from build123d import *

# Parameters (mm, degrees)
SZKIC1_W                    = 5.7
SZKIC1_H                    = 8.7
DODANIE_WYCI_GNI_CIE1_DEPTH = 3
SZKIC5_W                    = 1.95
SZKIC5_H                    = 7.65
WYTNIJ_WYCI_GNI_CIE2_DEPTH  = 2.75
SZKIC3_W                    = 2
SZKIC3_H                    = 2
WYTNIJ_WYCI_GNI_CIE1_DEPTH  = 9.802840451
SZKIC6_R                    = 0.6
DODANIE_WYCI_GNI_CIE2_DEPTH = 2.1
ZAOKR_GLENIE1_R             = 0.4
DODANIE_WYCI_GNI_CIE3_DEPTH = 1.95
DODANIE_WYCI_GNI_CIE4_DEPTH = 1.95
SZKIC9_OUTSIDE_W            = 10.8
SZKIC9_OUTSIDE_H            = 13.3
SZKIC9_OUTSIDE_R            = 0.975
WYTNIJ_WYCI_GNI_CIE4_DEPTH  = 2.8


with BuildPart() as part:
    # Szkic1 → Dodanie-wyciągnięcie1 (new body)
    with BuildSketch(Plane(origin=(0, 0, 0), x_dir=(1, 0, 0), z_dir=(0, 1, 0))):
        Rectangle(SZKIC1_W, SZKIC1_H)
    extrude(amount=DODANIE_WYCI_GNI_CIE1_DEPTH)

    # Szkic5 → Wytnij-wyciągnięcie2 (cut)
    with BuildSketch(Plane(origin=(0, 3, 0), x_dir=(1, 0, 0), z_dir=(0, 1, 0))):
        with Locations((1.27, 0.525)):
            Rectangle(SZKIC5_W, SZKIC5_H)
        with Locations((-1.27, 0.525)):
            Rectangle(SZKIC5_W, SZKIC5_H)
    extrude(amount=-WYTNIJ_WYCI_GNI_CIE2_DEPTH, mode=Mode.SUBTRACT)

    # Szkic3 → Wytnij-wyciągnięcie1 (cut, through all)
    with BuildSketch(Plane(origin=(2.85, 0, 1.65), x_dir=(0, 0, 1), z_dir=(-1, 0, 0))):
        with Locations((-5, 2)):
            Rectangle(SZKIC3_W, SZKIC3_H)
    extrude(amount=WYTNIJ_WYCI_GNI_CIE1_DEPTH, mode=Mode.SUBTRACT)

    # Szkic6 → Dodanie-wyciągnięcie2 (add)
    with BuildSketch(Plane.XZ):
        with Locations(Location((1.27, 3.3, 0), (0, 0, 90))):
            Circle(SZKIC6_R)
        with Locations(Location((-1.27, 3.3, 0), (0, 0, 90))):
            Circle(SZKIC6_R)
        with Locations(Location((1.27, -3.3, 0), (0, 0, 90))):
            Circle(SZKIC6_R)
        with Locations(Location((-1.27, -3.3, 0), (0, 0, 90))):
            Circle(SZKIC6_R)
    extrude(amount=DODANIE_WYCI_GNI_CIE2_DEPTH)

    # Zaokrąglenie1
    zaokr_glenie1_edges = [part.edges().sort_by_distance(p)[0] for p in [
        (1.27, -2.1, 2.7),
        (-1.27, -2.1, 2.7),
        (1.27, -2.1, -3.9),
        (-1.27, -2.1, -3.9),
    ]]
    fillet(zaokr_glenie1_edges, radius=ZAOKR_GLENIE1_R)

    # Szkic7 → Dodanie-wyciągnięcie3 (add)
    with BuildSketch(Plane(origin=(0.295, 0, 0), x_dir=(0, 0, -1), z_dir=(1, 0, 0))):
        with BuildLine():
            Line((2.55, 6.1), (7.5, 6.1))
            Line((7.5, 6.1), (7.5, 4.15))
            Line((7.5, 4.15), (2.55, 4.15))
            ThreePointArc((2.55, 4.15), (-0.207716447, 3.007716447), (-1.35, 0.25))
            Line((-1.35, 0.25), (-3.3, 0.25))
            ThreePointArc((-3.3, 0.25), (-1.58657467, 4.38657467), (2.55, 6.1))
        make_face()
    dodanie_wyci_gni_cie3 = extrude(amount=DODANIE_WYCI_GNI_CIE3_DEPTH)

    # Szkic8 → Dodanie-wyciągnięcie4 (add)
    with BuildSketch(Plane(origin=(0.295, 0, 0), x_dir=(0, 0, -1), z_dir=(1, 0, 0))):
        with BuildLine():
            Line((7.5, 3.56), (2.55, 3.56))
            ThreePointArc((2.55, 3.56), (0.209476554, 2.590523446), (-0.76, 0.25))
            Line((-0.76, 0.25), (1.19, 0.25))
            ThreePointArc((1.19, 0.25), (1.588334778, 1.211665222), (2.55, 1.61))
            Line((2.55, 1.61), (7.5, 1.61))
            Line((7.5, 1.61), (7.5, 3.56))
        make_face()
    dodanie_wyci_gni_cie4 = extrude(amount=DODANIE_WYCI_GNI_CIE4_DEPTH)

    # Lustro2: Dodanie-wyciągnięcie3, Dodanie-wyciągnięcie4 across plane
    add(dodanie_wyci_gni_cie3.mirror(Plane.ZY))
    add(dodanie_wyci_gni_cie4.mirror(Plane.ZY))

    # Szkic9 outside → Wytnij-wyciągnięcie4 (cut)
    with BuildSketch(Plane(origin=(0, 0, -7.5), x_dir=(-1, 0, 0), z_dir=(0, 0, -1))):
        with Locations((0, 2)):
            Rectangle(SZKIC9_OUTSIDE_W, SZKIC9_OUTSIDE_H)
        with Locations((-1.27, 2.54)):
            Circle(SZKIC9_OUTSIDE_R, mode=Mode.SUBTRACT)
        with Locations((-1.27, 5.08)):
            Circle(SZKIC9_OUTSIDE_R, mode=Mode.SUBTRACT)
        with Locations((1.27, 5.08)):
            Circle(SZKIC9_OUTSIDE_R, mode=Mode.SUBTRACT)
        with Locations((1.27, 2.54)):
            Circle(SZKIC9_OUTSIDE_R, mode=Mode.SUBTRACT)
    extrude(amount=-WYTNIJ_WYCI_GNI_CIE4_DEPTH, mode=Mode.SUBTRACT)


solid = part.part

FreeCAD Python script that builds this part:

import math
import FreeCAD as App
import Part
import Sketcher
from FreeCAD import Vector


def edges_at(feature, points):
    """Names of the edges that pass closest to the given points."""
    edges = feature.Shape.Edges
    near = lambda p: min(range(len(edges)), key=lambda i: edges[i].distToShape(Part.Vertex(*p))[0])
    return sorted({f"Edge{near(p) + 1}" for p in points})


def add_polygon(sketch, points):
    """Adds a closed chain of lines whose ends are joined by coincident constraints."""
    first, n = sketch.GeometryCount, len(points)
    for a, b in zip(points, points[1:] + points[:1]):
        sketch.addGeometry(Part.LineSegment(App.Vector(*a, 0), App.Vector(*b, 0)), False)
    for i in range(n):
        sketch.addConstraint(Sketcher.Constraint("Coincident", first + i, 2, first + (i + 1) % n, 1))

doc = App.newDocument("Part")
body = doc.addObject("PartDesign::Body", "Body")

sketch1 = doc.addObject("Sketcher::SketchObject", "Sketch")
body.addObject(sketch1)
sketch1.AttachmentSupport = (doc.XZ_Plane, [""])
sketch1.MapMode = "FlatFace"
add_polygon(sketch1, [(-2.85, -4.35), (-2.85, 4.35), (2.85, 4.35), (2.85, -4.35)])
sketch1.addConstraint(Sketcher.Constraint("Vertical", 0))
sketch1.addConstraint(Sketcher.Constraint("Horizontal", 1))
sketch1.addConstraint(Sketcher.Constraint("Vertical", 2))
sketch1.addConstraint(Sketcher.Constraint("Horizontal", 3))
sketch1.addConstraint(Sketcher.Constraint("Symmetric", 0, 2, 2, 2, -1, 1))
sketch1.addConstraint(Sketcher.Constraint("DistanceX", 1, 1, 1, 2, 5.7))
sketch1.addConstraint(Sketcher.Constraint("DistanceY", 0, 1, 0, 2, 8.7))
pad1 = doc.addObject("PartDesign::Pad", "Pad")
body.addObject(pad1)
pad1.Profile = sketch1
pad1.Length = 3
pad1.Reversed = True

sketch2 = doc.addObject("Sketcher::SketchObject", "Sketch001")
body.addObject(sketch2)
sketch2.AttachmentSupport = (doc.XZ_Plane, [""])
sketch2.MapMode = "FlatFace"
sketch2.AttachmentOffset = App.Placement(Vector(0, 0, -3), App.Rotation())
add_polygon(sketch2, [(0.295, -4.35), (0.295, 3.3), (2.245, 3.3), (2.245, -4.35)])
add_polygon(sketch2, [(-2.245, -4.35), (-2.245, 3.3), (-0.295, 3.3), (-0.295, -4.35)])
sketch2.addConstraint(Sketcher.Constraint("Vertical", 0))
sketch2.addConstraint(Sketcher.Constraint("Horizontal", 1))
sketch2.addConstraint(Sketcher.Constraint("Vertical", 2))
sketch2.addConstraint(Sketcher.Constraint("Horizontal", 3))
sketch2.addConstraint(Sketcher.Constraint("Vertical", 4))
sketch2.addConstraint(Sketcher.Constraint("Horizontal", 5))
sketch2.addConstraint(Sketcher.Constraint("Vertical", 6))
sketch2.addConstraint(Sketcher.Constraint("Horizontal", 7))
sketch2.addConstraint(Sketcher.Constraint("Symmetric", 1, 2, 4, 2, -2))
sketch2.addConstraint(Sketcher.Constraint("Symmetric", 3, 2, 6, 2, -2))
sketch2.addConstraint(Sketcher.Constraint("DistanceX", 1, 1, 1, 2, 1.95))
sketch2.addConstraint(Sketcher.Constraint("DistanceY", 0, 1, 0, 2, 7.65))
sketch2.addConstraint(Sketcher.Constraint("DistanceY", -1, 1, 0, 2, 3.3))
sketch2.addConstraint(Sketcher.Constraint("DistanceX", 4, 2, 0, 2, 2.54))
pocket1 = doc.addObject("PartDesign::Pocket", "Pocket")
body.addObject(pocket1)
pocket1.Profile = sketch2
pocket1.Length = 2.75
pocket1.Reversed = True

sketch3 = doc.addObject("Sketcher::SketchObject", "Sketch002")
body.addObject(sketch3)
sketch3.AttachmentSupport = (doc.YZ_Plane, [""])
sketch3.MapMode = "FlatFace"
sketch3.AttachmentOffset = App.Placement(Vector(0, 0, 2.85), App.Rotation())
add_polygon(sketch3, [(3, -4.35), (1, -4.35), (1, -2.35), (3, -2.35)])
sketch3.addConstraint(Sketcher.Constraint("Horizontal", 0))
sketch3.addConstraint(Sketcher.Constraint("Vertical", 1))
sketch3.addConstraint(Sketcher.Constraint("Horizontal", 2))
sketch3.addConstraint(Sketcher.Constraint("Vertical", 3))
sketch3.addConstraint(Sketcher.Constraint("Equal", 2, 1))
sketch3.addConstraint(Sketcher.Constraint("DistanceX", 0, 2, 0, 1, 2.0))
sketch3.addConstraint(Sketcher.Constraint("DistanceX", -1, 1, 0, 2, 1.0))
sketch3.addConstraint(Sketcher.Constraint("DistanceY", 0, 2, -1, 1, 4.35))
pocket2 = doc.addObject("PartDesign::Pocket", "Pocket001")
body.addObject(pocket2)
pocket2.Profile = sketch3
pocket2.Type = "ThroughAll"

sketch4 = doc.addObject("Sketcher::SketchObject", "Sketch003")
body.addObject(sketch4)
sketch4.AttachmentSupport = (doc.XZ_Plane, [""])
sketch4.MapMode = "FlatFace"
sketch4.addGeometry(Part.Circle(Vector(1.27, 3.3, 0), Vector(0, 0, 1), 0.6), False)
sketch4.addGeometry(Part.Circle(Vector(-1.27, 3.3, 0), Vector(0, 0, 1), 0.6), False)
sketch4.addGeometry(Part.Circle(Vector(1.27, -3.3, 0), Vector(0, 0, 1), 0.6), False)
sketch4.addGeometry(Part.Circle(Vector(-1.27, -3.3, 0), Vector(0, 0, 1), 0.6), False)
sketch4.addConstraint(Sketcher.Constraint("Equal", 0, 1))
sketch4.addConstraint(Sketcher.Constraint("Equal", 1, 2))
sketch4.addConstraint(Sketcher.Constraint("Equal", 2, 3))
sketch4.addConstraint(Sketcher.Constraint("Symmetric", 1, 3, 2, 3, -1, 1))
sketch4.addConstraint(Sketcher.Constraint("Symmetric", 0, 3, 3, 3, -1, 1))
sketch4.addConstraint(Sketcher.Constraint("Symmetric", 0, 3, 1, 3, -2))
sketch4.addConstraint(Sketcher.Constraint("Diameter", 0, 1.2))
sketch4.addConstraint(Sketcher.Constraint("DistanceY", -1, 1, 0, 3, 3.3))
sketch4.addConstraint(Sketcher.Constraint("DistanceX", -1, 1, 0, 3, 1.27))
pad2 = doc.addObject("PartDesign::Pad", "Pad001")
body.addObject(pad2)
pad2.Profile = sketch4
pad2.Length = 2.1
doc.recompute()

fillet = doc.addObject("PartDesign::Fillet", "Fillet")
body.addObject(fillet)
fillet.Base = (pad2, edges_at(pad2, [
    (1.27, -2.1, 2.7),
    (-1.27, -2.1, 2.7),
    (1.27, -2.1, -3.9),
    (-1.27, -2.1, -3.9),
]))
fillet.Radius = 0.4

sketch5 = doc.addObject("Sketcher::SketchObject", "Sketch004")
body.addObject(sketch5)
sketch5.AttachmentSupport = (doc.YZ_Plane, [""])
sketch5.MapMode = "FlatFace"
sketch5.AttachmentOffset = App.Placement(Vector(0, 0, 0.295), App.Rotation())
sketch5.addGeometry(Part.LineSegment(Vector(6.1, -7.5, 0), Vector(6.1, -2.55, 0)), False)
sketch5.addGeometry(Part.ArcOfCircle(Part.Circle(Vector(0.25, -2.55, 0), Vector(0, 0, 1), 5.85), math.radians(0), math.radians(90)), False)
sketch5.addGeometry(Part.LineSegment(Vector(0.25, 3.3, 0), Vector(0.25, 1.35, 0)), False)
sketch5.addGeometry(Part.ArcOfCircle(Part.Circle(Vector(0.25, -2.55, 0), Vector(0, 0, 1), 3.9), math.radians(0), math.radians(90)), False)
sketch5.addGeometry(Part.LineSegment(Vector(4.15, -2.55, 0), Vector(4.15, -7.5, 0)), False)
sketch5.addGeometry(Part.LineSegment(Vector(4.15, -7.5, 0), Vector(6.1, -7.5, 0)), False)
sketch5.addConstraint(Sketcher.Constraint("Tangent", 0, 2, 1, 1))
sketch5.addConstraint(Sketcher.Constraint("Coincident", 1, 2, 2, 1))
sketch5.addConstraint(Sketcher.Constraint("Coincident", 2, 2, 3, 2))
sketch5.addConstraint(Sketcher.Constraint("Tangent", 3, 1, 4, 1))
sketch5.addConstraint(Sketcher.Constraint("Coincident", 4, 2, 5, 1))
sketch5.addConstraint(Sketcher.Constraint("Coincident", 5, 2, 0, 1))
sketch5.addConstraint(Sketcher.Constraint("Vertical", 0))
sketch5.addConstraint(Sketcher.Constraint("Vertical", 2))
sketch5.addConstraint(Sketcher.Constraint("Vertical", 4))
sketch5.addConstraint(Sketcher.Constraint("Horizontal", 5))
sketch5.addConstraint(Sketcher.Constraint("Coincident", 3, 3, 1, 3))
sketch5.addConstraint(Sketcher.Constraint("Vertical", 3, 3, 1, 2))
sketch5.addConstraint(Sketcher.Constraint("Radius", 3, 3.9))
sketch5.addConstraint(Sketcher.Constraint("Radius", 1, 5.85))
sketch5.addConstraint(Sketcher.Constraint("DistanceY", 0, 1, 0, 2, 4.95))
sketch5.addConstraint(Sketcher.Constraint("DistanceX", -1, 1, 0, 2, 6.1))
sketch5.addConstraint(Sketcher.Constraint("DistanceY", -1, 1, 1, 2, 3.3))
pad3 = doc.addObject("PartDesign::Pad", "Pad002")
body.addObject(pad3)
pad3.Profile = sketch5
pad3.Length = 1.95

sketch6 = doc.addObject("Sketcher::SketchObject", "Sketch005")
body.addObject(sketch6)
sketch6.AttachmentSupport = (doc.YZ_Plane, [""])
sketch6.MapMode = "FlatFace"
sketch6.AttachmentOffset = App.Placement(Vector(0, 0, 0.295), App.Rotation())
sketch6.addGeometry(Part.LineSegment(Vector(3.56, -7.5, 0), Vector(3.56, -2.55, 0)), False)
sketch6.addGeometry(Part.ArcOfCircle(Part.Circle(Vector(0.25, -2.55, 0), Vector(0, 0, 1), 3.31), math.radians(0), math.radians(90)), False)
sketch6.addGeometry(Part.LineSegment(Vector(0.25, 0.76, 0), Vector(0.25, -1.19, 0)), False)
sketch6.addGeometry(Part.ArcOfCircle(Part.Circle(Vector(0.25, -2.55, 0), Vector(0, 0, 1), 1.36), math.radians(0), math.radians(90)), False)
sketch6.addGeometry(Part.LineSegment(Vector(1.61, -2.55, 0), Vector(1.61, -7.5, 0)), False)
sketch6.addGeometry(Part.LineSegment(Vector(1.61, -7.5, 0), Vector(3.56, -7.5, 0)), False)
sketch6.addConstraint(Sketcher.Constraint("Tangent", 0, 2, 1, 1))
sketch6.addConstraint(Sketcher.Constraint("Coincident", 1, 2, 2, 1))
sketch6.addConstraint(Sketcher.Constraint("Coincident", 2, 2, 3, 2))
sketch6.addConstraint(Sketcher.Constraint("Tangent", 3, 1, 4, 1))
sketch6.addConstraint(Sketcher.Constraint("Coincident", 4, 2, 5, 1))
sketch6.addConstraint(Sketcher.Constraint("Coincident", 5, 2, 0, 1))
sketch6.addConstraint(Sketcher.Constraint("Vertical", 0))
sketch6.addConstraint(Sketcher.Constraint("Vertical", 2))
sketch6.addConstraint(Sketcher.Constraint("Vertical", 4))
sketch6.addConstraint(Sketcher.Constraint("Horizontal", 5))
sketch6.addConstraint(Sketcher.Constraint("Coincident", 3, 3, 1, 3))
sketch6.addConstraint(Sketcher.Constraint("Vertical", 3, 3, 1, 2))
sketch6.addConstraint(Sketcher.Constraint("Radius", 1, 3.31))
sketch6.addConstraint(Sketcher.Constraint("Radius", 3, 1.36))
sketch6.addConstraint(Sketcher.Constraint("DistanceY", 0, 1, 0, 2, 4.95))
sketch6.addConstraint(Sketcher.Constraint("DistanceY", 4, 2, -1, 1, 7.5))
sketch6.addConstraint(Sketcher.Constraint("DistanceX", -1, 1, 1, 3, 0.25))
pad4 = doc.addObject("PartDesign::Pad", "Pad003")
body.addObject(pad4)
pad4.Profile = sketch6
pad4.Length = 1.95
doc.recompute()

mirrored = doc.addObject("PartDesign::Mirrored", "Mirrored")
body.addObject(mirrored)
mirrored.Originals = [pad3, pad4]
mirrored.MirrorPlane = (doc.YZ_Plane, [""])
body.Tip = mirrored

sketch7 = doc.addObject("Sketcher::SketchObject", "Sketch006")
body.addObject(sketch7)
sketch7.AttachmentSupport = (doc.XY_Plane, [""])
sketch7.MapMode = "FlatFace"
sketch7.AttachmentOffset = App.Placement(Vector(0, 0, -7.5), App.Rotation())
add_polygon(sketch7, [(5.4, 8.65), (5.4, -4.65), (-5.4, -4.65), (-5.4, 8.65)])
sketch7.addGeometry(Part.Circle(Vector(1.27, 2.54, 0), Vector(0, 0, 1), 0.975), False)
sketch7.addGeometry(Part.Circle(Vector(-1.27, 2.54, 0), Vector(0, 0, 1), 0.975), False)
sketch7.addGeometry(Part.Circle(Vector(1.27, 5.08, 0), Vector(0, 0, 1), 0.975), False)
sketch7.addGeometry(Part.Circle(Vector(-1.27, 5.08, 0), Vector(0, 0, 1), 0.975), False)
sketch7.addConstraint(Sketcher.Constraint("Vertical", 0))
sketch7.addConstraint(Sketcher.Constraint("Horizontal", 1))
sketch7.addConstraint(Sketcher.Constraint("Vertical", 2))
sketch7.addConstraint(Sketcher.Constraint("Horizontal", 3))
sketch7.addConstraint(Sketcher.Constraint("Equal", 4, 5))
sketch7.addConstraint(Sketcher.Constraint("Equal", 5, 6))
sketch7.addConstraint(Sketcher.Constraint("Equal", 6, 7))
sketch7.addConstraint(Sketcher.Constraint("Symmetric", 4, 3, 5, 3, -2))
sketch7.addConstraint(Sketcher.Constraint("Symmetric", 6, 3, 7, 3, -2))
sketch7.addConstraint(Sketcher.Constraint("Vertical", 4, 3, 6, 3))
sketch7.addConstraint(Sketcher.Constraint("Diameter", 4, 1.95))
sketch7.addConstraint(Sketcher.Constraint("DistanceX", 1, 2, 1, 1, 10.8))
sketch7.addConstraint(Sketcher.Constraint("DistanceY", 0, 2, 0, 1, 13.3))
sketch7.addConstraint(Sketcher.Constraint("DistanceX", -1, 1, 0, 2, 5.4))
sketch7.addConstraint(Sketcher.Constraint("DistanceX", -1, 1, 4, 3, 1.27))
sketch7.addConstraint(Sketcher.Constraint("DistanceY", -1, 1, 4, 3, 2.54))
sketch7.addConstraint(Sketcher.Constraint("DistanceY", -1, 1, 6, 3, 5.08))
sketch7.addConstraint(Sketcher.Constraint("DistanceY", 0, 2, -1, 1, 4.65))
pocket3 = doc.addObject("PartDesign::Pocket", "Pocket002")
body.addObject(pocket3)
pocket3.Profile = sketch7
pocket3.Length = 2.8
pocket3.Reversed = True

doc.recompute()
